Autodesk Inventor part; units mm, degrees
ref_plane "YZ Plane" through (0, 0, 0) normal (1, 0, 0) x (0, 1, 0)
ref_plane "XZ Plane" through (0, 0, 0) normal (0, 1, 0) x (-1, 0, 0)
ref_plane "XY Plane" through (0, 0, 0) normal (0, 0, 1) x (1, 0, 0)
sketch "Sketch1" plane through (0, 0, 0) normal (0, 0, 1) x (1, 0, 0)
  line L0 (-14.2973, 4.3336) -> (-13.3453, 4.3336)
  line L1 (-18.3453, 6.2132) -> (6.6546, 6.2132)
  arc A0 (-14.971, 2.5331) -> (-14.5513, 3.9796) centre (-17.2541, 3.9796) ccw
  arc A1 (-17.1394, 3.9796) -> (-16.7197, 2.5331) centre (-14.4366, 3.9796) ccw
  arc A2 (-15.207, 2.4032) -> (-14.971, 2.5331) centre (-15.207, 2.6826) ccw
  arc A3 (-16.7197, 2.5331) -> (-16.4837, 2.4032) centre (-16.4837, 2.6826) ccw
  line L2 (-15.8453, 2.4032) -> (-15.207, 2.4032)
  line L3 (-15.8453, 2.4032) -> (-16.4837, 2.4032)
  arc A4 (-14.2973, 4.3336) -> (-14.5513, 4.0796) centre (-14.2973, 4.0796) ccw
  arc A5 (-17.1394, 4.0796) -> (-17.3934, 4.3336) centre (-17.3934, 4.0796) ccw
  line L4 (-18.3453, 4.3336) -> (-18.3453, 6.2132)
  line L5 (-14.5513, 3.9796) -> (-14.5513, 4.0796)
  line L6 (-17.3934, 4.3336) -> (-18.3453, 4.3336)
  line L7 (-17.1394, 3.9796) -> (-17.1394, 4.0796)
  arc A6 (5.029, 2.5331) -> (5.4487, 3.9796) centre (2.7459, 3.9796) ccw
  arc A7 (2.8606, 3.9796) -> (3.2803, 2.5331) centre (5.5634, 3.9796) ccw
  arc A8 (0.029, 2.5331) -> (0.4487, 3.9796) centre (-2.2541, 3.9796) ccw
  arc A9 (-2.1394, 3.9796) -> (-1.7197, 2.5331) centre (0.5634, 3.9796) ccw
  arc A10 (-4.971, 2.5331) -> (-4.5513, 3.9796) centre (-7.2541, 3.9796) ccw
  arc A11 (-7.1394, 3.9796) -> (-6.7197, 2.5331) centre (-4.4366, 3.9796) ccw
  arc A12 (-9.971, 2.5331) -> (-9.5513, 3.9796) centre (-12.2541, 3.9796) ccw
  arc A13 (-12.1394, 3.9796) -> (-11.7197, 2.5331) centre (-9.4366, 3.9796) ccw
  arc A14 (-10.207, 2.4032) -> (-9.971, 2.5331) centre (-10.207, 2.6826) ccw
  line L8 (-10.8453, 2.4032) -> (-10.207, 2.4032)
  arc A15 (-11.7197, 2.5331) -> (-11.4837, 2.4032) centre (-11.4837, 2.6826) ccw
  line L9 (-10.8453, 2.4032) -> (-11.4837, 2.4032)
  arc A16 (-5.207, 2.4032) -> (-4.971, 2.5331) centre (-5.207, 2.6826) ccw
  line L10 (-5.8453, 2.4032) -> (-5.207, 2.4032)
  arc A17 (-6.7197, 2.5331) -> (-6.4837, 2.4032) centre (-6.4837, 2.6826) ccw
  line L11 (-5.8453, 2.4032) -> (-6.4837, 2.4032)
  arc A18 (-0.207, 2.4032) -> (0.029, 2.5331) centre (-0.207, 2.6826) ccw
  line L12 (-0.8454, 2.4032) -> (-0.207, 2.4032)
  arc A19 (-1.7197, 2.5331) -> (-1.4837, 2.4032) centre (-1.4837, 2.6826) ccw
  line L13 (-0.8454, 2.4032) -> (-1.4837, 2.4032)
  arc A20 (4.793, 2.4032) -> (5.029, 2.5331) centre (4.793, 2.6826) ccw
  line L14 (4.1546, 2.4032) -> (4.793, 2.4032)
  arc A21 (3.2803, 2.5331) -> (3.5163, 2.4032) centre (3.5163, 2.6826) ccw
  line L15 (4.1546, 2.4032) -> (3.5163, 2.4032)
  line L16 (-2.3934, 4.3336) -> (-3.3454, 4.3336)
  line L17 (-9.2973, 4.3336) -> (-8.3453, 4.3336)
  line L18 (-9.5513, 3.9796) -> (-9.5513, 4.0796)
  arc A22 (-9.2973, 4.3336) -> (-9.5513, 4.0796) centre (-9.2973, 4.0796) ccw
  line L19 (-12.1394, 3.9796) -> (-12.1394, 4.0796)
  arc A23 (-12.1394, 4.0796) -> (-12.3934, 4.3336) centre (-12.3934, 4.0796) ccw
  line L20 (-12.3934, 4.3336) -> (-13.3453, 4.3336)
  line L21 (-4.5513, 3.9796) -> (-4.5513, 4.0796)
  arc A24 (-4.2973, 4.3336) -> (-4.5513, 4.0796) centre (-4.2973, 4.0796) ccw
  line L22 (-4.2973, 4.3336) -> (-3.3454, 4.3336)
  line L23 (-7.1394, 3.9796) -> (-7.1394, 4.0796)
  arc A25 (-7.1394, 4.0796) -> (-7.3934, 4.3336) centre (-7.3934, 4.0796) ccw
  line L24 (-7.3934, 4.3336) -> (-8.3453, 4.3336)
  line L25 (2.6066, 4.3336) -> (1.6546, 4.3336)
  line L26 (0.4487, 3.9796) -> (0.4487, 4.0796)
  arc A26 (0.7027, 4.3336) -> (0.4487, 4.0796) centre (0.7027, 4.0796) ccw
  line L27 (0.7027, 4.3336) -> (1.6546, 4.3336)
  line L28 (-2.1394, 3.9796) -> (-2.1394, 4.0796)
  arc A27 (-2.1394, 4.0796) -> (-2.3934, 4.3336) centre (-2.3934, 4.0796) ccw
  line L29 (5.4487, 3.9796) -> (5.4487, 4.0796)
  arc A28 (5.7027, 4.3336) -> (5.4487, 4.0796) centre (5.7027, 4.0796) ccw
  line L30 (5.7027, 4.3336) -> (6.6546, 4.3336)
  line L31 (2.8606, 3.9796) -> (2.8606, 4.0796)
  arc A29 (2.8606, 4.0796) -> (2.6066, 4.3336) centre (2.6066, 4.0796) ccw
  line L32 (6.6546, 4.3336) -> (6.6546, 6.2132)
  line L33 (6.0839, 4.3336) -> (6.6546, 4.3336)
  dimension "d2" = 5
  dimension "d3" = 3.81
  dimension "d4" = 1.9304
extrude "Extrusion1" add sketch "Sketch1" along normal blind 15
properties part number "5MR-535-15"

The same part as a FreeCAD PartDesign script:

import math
import FreeCAD as App
import Part
import Sketcher
from FreeCAD import Vector
Q = App.Units.Quantity

doc = App.newDocument("Part")
body = doc.addObject("PartDesign::Body", "Body")

# Sketch on XY plane
sketch1 = body.newObject("Sketcher::SketchObject", "Sketch")
sketch1.AttachmentSupport = (doc.getObject("XY_Plane"), [""])
sketch1.MapMode = "FlatFace"
sketch1.addGeometry([
    Part.ArcOfCircle(Part.Circle(Vector(-14.3, 4.08, 0), Vector(0, 0, 1), 0.25), math.radians(90), math.radians(180)),  # 0
    Part.LineSegment(Vector(-14.3, 4.33, 0), Vector(-12.39, 4.33, 0)),  # 1
    Part.ArcOfCircle(Part.Circle(Vector(-12.39, 4.08, 0), Vector(0, 0, 1), 0.25), math.radians(0), math.radians(90)),  # 2
    Part.LineSegment(Vector(-12.14, 4.08, 0), Vector(-12.14, 3.98, 0)),  # 3
    Part.ArcOfCircle(Part.Circle(Vector(-9.44, 3.98, 0), Vector(0, 0, 1), 2.7), math.radians(180), math.radians(212)),  # 4
    Part.ArcOfCircle(Part.Circle(Vector(-11.48, 2.68, 0), Vector(0, 0, 1), 0.28), math.radians(-148), math.radians(-90)),  # 5
    Part.LineSegment(Vector(-11.48, 2.4, 0), Vector(-10.21, 2.4, 0)),  # 6
    Part.ArcOfCircle(Part.Circle(Vector(-10.21, 2.68, 0), Vector(0, 0, 1), 0.28), math.radians(-90), math.radians(-32)),  # 7
    Part.ArcOfCircle(Part.Circle(Vector(-12.25, 3.98, 0), Vector(0, 0, 1), 2.7), math.radians(-32), math.radians(0)),  # 8
    Part.LineSegment(Vector(-9.55, 3.98, 0), Vector(-9.55, 4.08, 0)),  # 9
    Part.ArcOfCircle(Part.Circle(Vector(-9.3, 4.08, 0), Vector(0, 0, 1), 0.25), math.radians(90), math.radians(180)),  # 10
    Part.LineSegment(Vector(-9.3, 4.33, 0), Vector(-7.39, 4.33, 0)),  # 11
    Part.ArcOfCircle(Part.Circle(Vector(-7.39, 4.08, 0), Vector(0, 0, 1), 0.25), math.radians(0), math.radians(90)),  # 12
    Part.LineSegment(Vector(-7.14, 4.08, 0), Vector(-7.14, 3.98, 0)),  # 13
    Part.ArcOfCircle(Part.Circle(Vector(-4.44, 3.98, 0), Vector(0, 0, 1), 2.7), math.radians(180), math.radians(212)),  # 14
    Part.ArcOfCircle(Part.Circle(Vector(-6.48, 2.68, 0), Vector(0, 0, 1), 0.28), math.radians(-148), math.radians(-90)),  # 15
    Part.LineSegment(Vector(-6.48, 2.4, 0), Vector(-5.21, 2.4, 0)),  # 16
    Part.ArcOfCircle(Part.Circle(Vector(-5.21, 2.68, 0), Vector(0, 0, 1), 0.28), math.radians(-90), math.radians(-32)),  # 17
    Part.ArcOfCircle(Part.Circle(Vector(-7.25, 3.98, 0), Vector(0, 0, 1), 2.7), math.radians(-32), math.radians(0)),  # 18
    Part.LineSegment(Vector(-4.55, 3.98, 0), Vector(-4.55, 4.08, 0)),  # 19
    Part.ArcOfCircle(Part.Circle(Vector(-4.3, 4.08, 0), Vector(0, 0, 1), 0.25), math.radians(90), math.radians(180)),  # 20
    Part.LineSegment(Vector(-4.3, 4.33, 0), Vector(-2.39, 4.33, 0)),  # 21
    Part.ArcOfCircle(Part.Circle(Vector(-2.39, 4.08, 0), Vector(0, 0, 1), 0.25), math.radians(0), math.radians(90)),  # 22
    Part.LineSegment(Vector(-2.14, 4.08, 0), Vector(-2.14, 3.98, 0)),  # 23
    Part.ArcOfCircle(Part.Circle(Vector(0.56, 3.98, 0), Vector(0, 0, 1), 2.7), math.radians(180), math.radians(212)),  # 24
    Part.ArcOfCircle(Part.Circle(Vector(-1.48, 2.68, 0), Vector(0, 0, 1), 0.28), math.radians(-148), math.radians(-90)),  # 25
    Part.LineSegment(Vector(-1.48, 2.4, 0), Vector(-0.21, 2.4, 0)),  # 26
    Part.ArcOfCircle(Part.Circle(Vector(-0.21, 2.68, 0), Vector(0, 0, 1), 0.28), math.radians(-90), math.radians(-32)),  # 27
    Part.ArcOfCircle(Part.Circle(Vector(-2.25, 3.98, 0), Vector(0, 0, 1), 2.7), math.radians(-32), math.radians(0)),  # 28
    Part.LineSegment(Vector(0.45, 3.98, 0), Vector(0.45, 4.08, 0)),  # 29
    Part.ArcOfCircle(Part.Circle(Vector(0.7, 4.08, 0), Vector(0, 0, 1), 0.25), math.radians(90), math.radians(180)),  # 30
    Part.LineSegment(Vector(0.7, 4.33, 0), Vector(2.61, 4.33, 0)),  # 31
    Part.ArcOfCircle(Part.Circle(Vector(2.61, 4.08, 0), Vector(0, 0, 1), 0.25), math.radians(0), math.radians(90)),  # 32
    Part.LineSegment(Vector(2.86, 4.08, 0), Vector(2.86, 3.98, 0)),  # 33
    Part.ArcOfCircle(Part.Circle(Vector(5.56, 3.98, 0), Vector(0, 0, 1), 2.7), math.radians(180), math.radians(212)),  # 34
    Part.ArcOfCircle(Part.Circle(Vector(3.52, 2.68, 0), Vector(0, 0, 1), 0.28), math.radians(-148), math.radians(-90)),  # 35
    Part.LineSegment(Vector(3.52, 2.4, 0), Vector(4.79, 2.4, 0)),  # 36
    Part.ArcOfCircle(Part.Circle(Vector(4.79, 2.68, 0), Vector(0, 0, 1), 0.28), math.radians(-90), math.radians(-32)),  # 37
    Part.ArcOfCircle(Part.Circle(Vector(2.75, 3.98, 0), Vector(0, 0, 1), 2.7), math.radians(-32), math.radians(0)),  # 38
    Part.LineSegment(Vector(5.45, 3.98, 0), Vector(5.45, 4.08, 0)),  # 39
    Part.ArcOfCircle(Part.Circle(Vector(5.7, 4.08, 0), Vector(0, 0, 1), 0.25), math.radians(90), math.radians(180)),  # 40
    Part.LineSegment(Vector(5.7, 4.33, 0), Vector(6.65, 4.33, 0)),  # 41
    Part.LineSegment(Vector(6.65, 4.33, 0), Vector(6.65, 6.21, 0)),  # 42
    Part.LineSegment(Vector(6.65, 6.21, 0), Vector(-18.35, 6.21, 0)),  # 43
    Part.LineSegment(Vector(-18.35, 6.21, 0), Vector(-18.35, 4.33, 0)),  # 44
    Part.LineSegment(Vector(-18.35, 4.33, 0), Vector(-17.39, 4.33, 0)),  # 45
    Part.ArcOfCircle(Part.Circle(Vector(-17.39, 4.08, 0), Vector(0, 0, 1), 0.25), math.radians(0), math.radians(90)),  # 46
    Part.LineSegment(Vector(-17.14, 4.08, 0), Vector(-17.14, 3.98, 0)),  # 47
    Part.ArcOfCircle(Part.Circle(Vector(-14.44, 3.98, 0), Vector(0, 0, 1), 2.7), math.radians(180), math.radians(212)),  # 48
    Part.ArcOfCircle(Part.Circle(Vector(-16.48, 2.68, 0), Vector(0, 0, 1), 0.28), math.radians(-148), math.radians(-90)),  # 49
    Part.LineSegment(Vector(-16.48, 2.4, 0), Vector(-15.21, 2.4, 0)),  # 50
    Part.ArcOfCircle(Part.Circle(Vector(-15.21, 2.68, 0), Vector(0, 0, 1), 0.28), math.radians(-90), math.radians(-32)),  # 51
    Part.ArcOfCircle(Part.Circle(Vector(-17.25, 3.98, 0), Vector(0, 0, 1), 2.7), math.radians(-32), math.radians(0)),  # 52
    Part.LineSegment(Vector(-14.55, 3.98, 0), Vector(-14.55, 4.08, 0)),  # 53
], False)
sketch1.addConstraint([
    Sketcher.Constraint("Tangent", 0, 1, 1, 1),
    Sketcher.Constraint("Tangent", 1, 2, 2, 2),
    Sketcher.Constraint("Tangent", 2, 1, 3, 1),
    Sketcher.Constraint("Tangent", 3, 2, 4, 1),
    Sketcher.Constraint("Tangent", 4, 2, 5, 1),
    Sketcher.Constraint("Tangent", 5, 2, 6, 1),
    Sketcher.Constraint("Tangent", 6, 2, 7, 1),
    Sketcher.Constraint("Tangent", 7, 2, 8, 1),
    Sketcher.Constraint("Tangent", 8, 2, 9, 1),
    Sketcher.Constraint("Tangent", 9, 2, 10, 2),
    Sketcher.Constraint("Tangent", 10, 1, 11, 1),
    Sketcher.Constraint("Tangent", 11, 2, 12, 2),
    Sketcher.Constraint("Tangent", 12, 1, 13, 1),
    Sketcher.Constraint("Tangent", 13, 2, 14, 1),
    Sketcher.Constraint("Tangent", 14, 2, 15, 1),
    Sketcher.Constraint("Tangent", 15, 2, 16, 1),
    Sketcher.Constraint("Tangent", 16, 2, 17, 1),
    Sketcher.Constraint("Tangent", 17, 2, 18, 1),
    Sketcher.Constraint("Tangent", 18, 2, 19, 1),
    Sketcher.Constraint("Tangent", 19, 2, 20, 2),
    Sketcher.Constraint("Tangent", 20, 1, 21, 1),
    Sketcher.Constraint("Tangent", 21, 2, 22, 2),
    Sketcher.Constraint("Tangent", 22, 1, 23, 1),
    Sketcher.Constraint("Tangent", 23, 2, 24, 1),
    Sketcher.Constraint("Tangent", 24, 2, 25, 1),
    Sketcher.Constraint("Tangent", 25, 2, 26, 1),
    Sketcher.Constraint("Tangent", 26, 2, 27, 1),
    Sketcher.Constraint("Tangent", 27, 2, 28, 1),
    Sketcher.Constraint("Tangent", 28, 2, 29, 1),
    Sketcher.Constraint("Tangent", 29, 2, 30, 2),
    Sketcher.Constraint("Tangent", 30, 1, 31, 1),
    Sketcher.Constraint("Tangent", 31, 2, 32, 2),
    Sketcher.Constraint("Tangent", 32, 1, 33, 1),
    Sketcher.Constraint("Tangent", 33, 2, 34, 1),
    Sketcher.Constraint("Tangent", 34, 2, 35, 1),
    Sketcher.Constraint("Tangent", 35, 2, 36, 1),
    Sketcher.Constraint("Tangent", 36, 2, 37, 1),
    Sketcher.Constraint("Tangent", 37, 2, 38, 1),
    Sketcher.Constraint("Tangent", 38, 2, 39, 1),
    Sketcher.Constraint("Tangent", 39, 2, 40, 2),
    Sketcher.Constraint("Tangent", 40, 1, 41, 1),
    Sketcher.Constraint("Coincident", 41, 2, 42, 1),
    Sketcher.Constraint("Coincident", 42, 2, 43, 1),
    Sketcher.Constraint("Coincident", 43, 2, 44, 1),
    Sketcher.Constraint("Coincident", 44, 2, 45, 1),
    Sketcher.Constraint("Tangent", 45, 2, 46, 2),
    Sketcher.Constraint("Tangent", 46, 1, 47, 1),
    Sketcher.Constraint("Tangent", 47, 2, 48, 1),
    Sketcher.Constraint("Tangent", 48, 2, 49, 1),
    Sketcher.Constraint("Tangent", 49, 2, 50, 1),
    Sketcher.Constraint("Tangent", 50, 2, 51, 1),
    Sketcher.Constraint("Tangent", 51, 2, 52, 1),
    Sketcher.Constraint("Tangent", 52, 2, 53, 1),
    Sketcher.Constraint("Tangent", 53, 2, 0, 2),
    Sketcher.Constraint("Horizontal", 1),
    Sketcher.Constraint("Vertical", 3),
    Sketcher.Constraint("Horizontal", 6),
    Sketcher.Constraint("Vertical", 9),
    Sketcher.Constraint("Horizontal", 11),
    Sketcher.Constraint("Vertical", 13),
    Sketcher.Constraint("Horizontal", 16),
    Sketcher.Constraint("Vertical", 19),
    Sketcher.Constraint("Horizontal", 21),
    Sketcher.Constraint("Vertical", 23),
    Sketcher.Constraint("Horizontal", 26),
    Sketcher.Constraint("Vertical", 29),
    Sketcher.Constraint("Horizontal", 31),
    Sketcher.Constraint("Vertical", 33),
    Sketcher.Constraint("Horizontal", 36),
    Sketcher.Constraint("Vertical", 39),
    Sketcher.Constraint("Horizontal", 41),
    Sketcher.Constraint("Vertical", 42),
    Sketcher.Constraint("Horizontal", 43),
    Sketcher.Constraint("Vertical", 44),
    Sketcher.Constraint("Horizontal", 45),
    Sketcher.Constraint("Vertical", 47),
    Sketcher.Constraint("Horizontal", 50),
    Sketcher.Constraint("Vertical", 53),
    Sketcher.Constraint("Equal", 0, 2),
    Sketcher.Constraint("Equal", 5, 7),
    Sketcher.Constraint("Equal", 4, 8),
    Sketcher.Constraint("Equal", 2, 10),
    Sketcher.Constraint("Equal", 10, 12),
    Sketcher.Constraint("Equal", 8, 14),
    Sketcher.Constraint("Equal", 7, 15),
    Sketcher.Constraint("Equal", 15, 17),
    Sketcher.Constraint("Equal", 14, 18),
    Sketcher.Constraint("Equal", 12, 20),
    Sketcher.Constraint("Equal", 20, 22),
    Sketcher.Constraint("Equal", 18, 24),
    Sketcher.Constraint("Equal", 17, 25),
    Sketcher.Constraint("Equal", 25, 27),
    Sketcher.Constraint("Equal", 24, 28),
    Sketcher.Constraint("Equal", 22, 30),
    Sketcher.Constraint("Equal", 30, 32),
    Sketcher.Constraint("Equal", 28, 34),
    Sketcher.Constraint("Equal", 27, 35),
    Sketcher.Constraint("Equal", 35, 37),
    Sketcher.Constraint("Equal", 34, 38),
    Sketcher.Constraint("Equal", 32, 40),
    Sketcher.Constraint("Equal", 40, 46),
    Sketcher.Constraint("Equal", 38, 48),
    Sketcher.Constraint("Equal", 37, 49),
    Sketcher.Constraint("Equal", 49, 51),
    Sketcher.Constraint("Equal", 48, 52),
    Sketcher.Constraint("Horizontal", 4, 3, 8, 3),
    Sketcher.Constraint("Horizontal", 2, 3, 10, 3),
    Sketcher.Constraint("Horizontal", 8, 3, 14, 3),
    Sketcher.Constraint("Horizontal", 7, 3, 15, 3),
    Sketcher.Constraint("Horizontal", 14, 3, 18, 3),
    Sketcher.Constraint("Horizontal", 12, 3, 20, 3),
    Sketcher.Constraint("Horizontal", 18, 3, 24, 3),
    Sketcher.Constraint("Horizontal", 17, 3, 25, 3),
    Sketcher.Constraint("Horizontal", 24, 3, 28, 3),
    Sketcher.Constraint("Horizontal", 22, 3, 30, 3),
    Sketcher.Constraint("Horizontal", 28, 3, 34, 3),
    Sketcher.Constraint("Horizontal", 27, 3, 35, 3),
    Sketcher.Constraint("Horizontal", 34, 3, 38, 3),
    Sketcher.Constraint("Horizontal", 32, 3, 40, 3),
    Sketcher.Constraint("Horizontal", 40, 3, 46, 3),
    Sketcher.Constraint("Horizontal", 38, 3, 48, 3),
    Sketcher.Constraint("Horizontal", 37, 3, 49, 3),
    Sketcher.Constraint("Horizontal", 48, 3, 52, 3),
    Sketcher.Constraint("Equal", 1, 11),
    Sketcher.Constraint("Equal", 6, 16),
    Sketcher.Constraint("Equal", 11, 21),
    Sketcher.Constraint("Equal", 16, 26),
    Sketcher.Constraint("Equal", 21, 31),
    Sketcher.Constraint("Equal", 26, 36),
    Sketcher.Constraint("Equal", 41, 45),
    Sketcher.Constraint("Equal", 36, 50),
    Sketcher.Constraint("Radius", 0, Q("0.01 in")),
    Sketcher.Constraint("Radius", 5, Q("0.011 in")),
    Sketcher.Constraint("Radius", 4, Q("0.1064 in")),
    Sketcher.Constraint("DistanceY", 42, 1, 42, 2, Q("0.074 in")),
    Sketcher.Constraint("DistanceX", 17, 3, -1, 1, Q("0.205 in")),
    Sketcher.Constraint("DistanceX", -1, 1, 37, 2, Q("0.198 in")),
    Sketcher.Constraint("DistanceX", -1, 1, 41, 2, Q("0.262 in")),
    Sketcher.Constraint("DistanceX", 1, 1, 1, 2, Q("1.904 mm")),
    Sketcher.Constraint("DistanceX", 6, 1, 6, 2, Q("1.2767 mm")),
    Sketcher.Constraint("DistanceY", 3, 2, 3, 1, Q("0.1 mm")),
    Sketcher.Constraint("DistanceY", -1, 1, 0, 3, Q("4.0796 mm")),
])
pad1 = body.newObject("PartDesign::Pad", "Pad")
pad1.Profile = sketch1
pad1.Length = 15

doc.recompute()
